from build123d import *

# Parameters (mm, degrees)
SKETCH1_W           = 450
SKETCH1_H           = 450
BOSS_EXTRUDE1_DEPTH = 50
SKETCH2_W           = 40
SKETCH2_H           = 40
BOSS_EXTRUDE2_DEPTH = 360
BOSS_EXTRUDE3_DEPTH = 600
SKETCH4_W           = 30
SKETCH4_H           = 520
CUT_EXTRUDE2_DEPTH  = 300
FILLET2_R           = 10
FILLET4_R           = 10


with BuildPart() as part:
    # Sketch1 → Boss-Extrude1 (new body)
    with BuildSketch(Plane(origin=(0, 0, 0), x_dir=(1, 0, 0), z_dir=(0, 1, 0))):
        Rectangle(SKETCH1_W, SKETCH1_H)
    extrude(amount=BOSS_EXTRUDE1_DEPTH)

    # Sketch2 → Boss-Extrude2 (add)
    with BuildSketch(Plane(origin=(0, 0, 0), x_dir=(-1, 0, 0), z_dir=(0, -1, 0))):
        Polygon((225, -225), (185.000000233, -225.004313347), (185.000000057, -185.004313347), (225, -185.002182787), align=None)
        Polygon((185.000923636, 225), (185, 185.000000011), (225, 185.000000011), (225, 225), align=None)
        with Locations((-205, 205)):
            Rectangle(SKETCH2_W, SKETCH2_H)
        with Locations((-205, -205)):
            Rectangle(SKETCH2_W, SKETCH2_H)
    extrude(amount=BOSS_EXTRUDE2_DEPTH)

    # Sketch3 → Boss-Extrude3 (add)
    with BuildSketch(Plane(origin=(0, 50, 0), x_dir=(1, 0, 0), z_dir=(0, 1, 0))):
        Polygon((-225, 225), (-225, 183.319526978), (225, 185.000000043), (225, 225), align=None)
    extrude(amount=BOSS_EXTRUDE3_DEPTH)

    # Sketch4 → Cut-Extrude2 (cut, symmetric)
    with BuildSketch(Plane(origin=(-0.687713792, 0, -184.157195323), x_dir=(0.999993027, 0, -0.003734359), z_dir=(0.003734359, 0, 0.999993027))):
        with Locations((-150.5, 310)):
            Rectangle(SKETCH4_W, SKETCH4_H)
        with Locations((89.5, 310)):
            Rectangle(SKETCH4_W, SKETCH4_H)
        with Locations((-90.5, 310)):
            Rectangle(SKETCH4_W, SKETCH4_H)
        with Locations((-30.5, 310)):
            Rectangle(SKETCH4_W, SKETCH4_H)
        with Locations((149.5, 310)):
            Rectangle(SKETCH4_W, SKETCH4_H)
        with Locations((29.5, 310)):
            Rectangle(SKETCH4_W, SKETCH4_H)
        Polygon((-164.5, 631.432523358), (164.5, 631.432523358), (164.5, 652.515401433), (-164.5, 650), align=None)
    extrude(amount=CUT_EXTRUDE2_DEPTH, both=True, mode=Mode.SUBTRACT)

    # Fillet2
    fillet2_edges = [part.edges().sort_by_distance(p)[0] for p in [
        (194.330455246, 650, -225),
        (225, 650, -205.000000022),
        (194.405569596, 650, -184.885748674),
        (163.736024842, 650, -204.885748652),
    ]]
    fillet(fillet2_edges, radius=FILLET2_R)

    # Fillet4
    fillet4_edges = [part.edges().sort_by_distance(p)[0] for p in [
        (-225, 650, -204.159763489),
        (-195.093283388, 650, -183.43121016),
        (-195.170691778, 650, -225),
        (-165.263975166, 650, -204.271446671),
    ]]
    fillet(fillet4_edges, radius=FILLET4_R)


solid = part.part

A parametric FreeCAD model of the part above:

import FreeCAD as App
import Part
import Sketcher

V = App.Vector
Q = App.Units.Quantity


def edges_at(feature, points):
    """Names of the edges that pass closest to the given points."""
    edges = feature.Shape.Edges
    near = lambda p: min(range(len(edges)), key=lambda i: edges[i].distToShape(Part.Vertex(*p))[0])
    return sorted({f"Edge{near(p) + 1}" for p in points})

doc = App.newDocument("Part")
params = doc.addObject("Spreadsheet::Sheet", "Params")
for row, (alias, value) in enumerate([
    ("sketch1_width", "450 mm"),
    ("pad1_length", "50 mm"),
    ("sketch2_width", "40 mm"),
    ("pad2_length", "360 mm"),
    ("sketch3_width", "450 mm"),
    ("sketch3_height", "40 mm"),
    ("pad3_length", "600 mm"),
    ("sketch4_width", "30 mm"),
    ("sketch4_width2", "329 mm"),
    ("sketch4_height", "519.999999 mm"),
    ("pocket1_length", "600 mm"),
    ("fillet_radius", "10 mm"),
    ("fillet2_radius", "10 mm"),
], start=1):
    params.set(f"A{row}", alias)
    params.set(f"B{row}", "=" + value)
    params.setAlias(f"B{row}", alias)

body = doc.addObject("PartDesign::Body", "Body")

# Sketch on XZ plane
sketch1 = doc.addObject("Sketcher::SketchObject", "Sketch")
body.addObject(sketch1)
sketch1.AttachmentSupport = (doc.XZ_Plane, [""])
sketch1.MapMode = "FlatFace"
sketch1.addGeometry(Part.LineSegment(V(-225, -225, 0), V(-225, 225, 0)), False)
sketch1.addGeometry(Part.LineSegment(V(-225, 225, 0), V(225, 225, 0)), False)
sketch1.addGeometry(Part.LineSegment(V(225, 225, 0), V(225, -225, 0)), False)
sketch1.addGeometry(Part.LineSegment(V(225, -225, 0), V(-225, -225, 0)), False)
sketch1.addConstraint(Sketcher.Constraint("Coincident", 0, 2, 1, 1))
sketch1.addConstraint(Sketcher.Constraint("Coincident", 1, 2, 2, 1))
sketch1.addConstraint(Sketcher.Constraint("Coincident", 2, 2, 3, 1))
sketch1.addConstraint(Sketcher.Constraint("Coincident", 3, 2, 0, 1))
sketch1.addConstraint(Sketcher.Constraint("Vertical", 0))
sketch1.addConstraint(Sketcher.Constraint("Horizontal", 1))
sketch1.addConstraint(Sketcher.Constraint("Vertical", 2))
sketch1.addConstraint(Sketcher.Constraint("Horizontal", 3))
sketch1.addConstraint(Sketcher.Constraint("Symmetric", 0, 2, 2, 2, -1, 1))
sketch1.addConstraint(Sketcher.Constraint("Equal", 3, 0))
sketch1.addConstraint(Sketcher.Constraint("DistanceX", 1, 1, 1, 2, Q("450 mm")))
sketch1.setExpression("Constraints[10]", "Params.sketch1_width")
pad1 = doc.addObject("PartDesign::Pad", "Pad")
body.addObject(pad1)
pad1.Profile = sketch1
pad1.setExpression("Length", "Params.pad1_length")
pad1.Reversed = True

# Sketch on XZ plane
sketch2 = doc.addObject("Sketcher::SketchObject", "Sketch001")
body.addObject(sketch2)
sketch2.AttachmentSupport = (doc.XZ_Plane, [""])
sketch2.MapMode = "FlatFace"
sketch2.addGeometry(Part.LineSegment(V(-185, 225.004313, 0), V(-225, 225, 0)), False)
sketch2.addGeometry(Part.LineSegment(V(-225, 225, 0), V(-225, 185.002183, 0)), False)
sketch2.addGeometry(Part.LineSegment(V(-225, 185.002183, 0), V(-185, 185.004313, 0)), False)
sketch2.addGeometry(Part.LineSegment(V(-185, 185.004313, 0), V(-185, 225.004313, 0)), False)
sketch2.addGeometry(Part.LineSegment(V(-185.000924, -225, 0), V(-185, -185, 0)), False)
sketch2.addGeometry(Part.LineSegment(V(-185, -185, 0), V(-225, -185, 0)), False)
sketch2.addGeometry(Part.LineSegment(V(-225, -185, 0), V(-225, -225, 0)), False)
sketch2.addGeometry(Part.LineSegment(V(-225, -225, 0), V(-185.000924, -225, 0)), False)
sketch2.addGeometry(Part.LineSegment(V(225, -225, 0), V(225, -185, 0)), False)
sketch2.addGeometry(Part.LineSegment(V(225, -185, 0), V(185, -185, 0)), False)
sketch2.addGeometry(Part.LineSegment(V(185, -185, 0), V(185, -225, 0)), False)
sketch2.addGeometry(Part.LineSegment(V(185, -225, 0), V(225, -225, 0)), False)
sketch2.addGeometry(Part.LineSegment(V(225, 185, 0), V(225, 225, 0)), False)
sketch2.addGeometry(Part.LineSegment(V(225, 225, 0), V(185, 225, 0)), False)
sketch2.addGeometry(Part.LineSegment(V(185, 225, 0), V(185, 185, 0)), False)
sketch2.addGeometry(Part.LineSegment(V(185, 185, 0), V(225, 185, 0)), False)
sketch2.addConstraint(Sketcher.Constraint("Coincident", 0, 2, 1, 1))
sketch2.addConstraint(Sketcher.Constraint("Coincident", 1, 2, 2, 1))
sketch2.addConstraint(Sketcher.Constraint("Coincident", 2, 2, 3, 1))
sketch2.addConstraint(Sketcher.Constraint("Coincident", 3, 2, 0, 1))
sketch2.addConstraint(Sketcher.Constraint("Coincident", 4, 2, 5, 1))
sketch2.addConstraint(Sketcher.Constraint("Coincident", 5, 2, 6, 1))
sketch2.addConstraint(Sketcher.Constraint("Coincident", 6, 2, 7, 1))
sketch2.addConstraint(Sketcher.Constraint("Coincident", 7, 2, 4, 1))
sketch2.addConstraint(Sketcher.Constraint("Coincident", 8, 2, 9, 1))
sketch2.addConstraint(Sketcher.Constraint("Coincident", 9, 2, 10, 1))
sketch2.addConstraint(Sketcher.Constraint("Coincident", 10, 2, 11, 1))
sketch2.addConstraint(Sketcher.Constraint("Coincident", 11, 2, 8, 1))
sketch2.addConstraint(Sketcher.Constraint("Coincident", 12, 2, 13, 1))
sketch2.addConstraint(Sketcher.Constraint("Coincident", 13, 2, 14, 1))
sketch2.addConstraint(Sketcher.Constraint("Coincident", 14, 2, 15, 1))
sketch2.addConstraint(Sketcher.Constraint("Coincident", 15, 2, 12, 1))
sketch2.addConstraint(Sketcher.Constraint("Vertical", 1))
sketch2.addConstraint(Sketcher.Constraint("Vertical", 3))
sketch2.addConstraint(Sketcher.Constraint("Horizontal", 5))
sketch2.addConstraint(Sketcher.Constraint("Vertical", 6))
sketch2.addConstraint(Sketcher.Constraint("Horizontal", 7))
sketch2.addConstraint(Sketcher.Constraint("Vertical", 8))
sketch2.addConstraint(Sketcher.Constraint("Horizontal", 9))
sketch2.addConstraint(Sketcher.Constraint("Vertical", 10))
sketch2.addConstraint(Sketcher.Constraint("Horizontal", 11))
sketch2.addConstraint(Sketcher.Constraint("Vertical", 12))
sketch2.addConstraint(Sketcher.Constraint("Horizontal", 13))
sketch2.addConstraint(Sketcher.Constraint("Vertical", 14))
sketch2.addConstraint(Sketcher.Constraint("Horizontal", 15))
sketch2.addConstraint(Sketcher.Constraint("Symmetric", 0, 2, 11, 2, -1, 1))
sketch2.addConstraint(Sketcher.Constraint("Symmetric", 6, 2, 12, 2, -1, 1))
sketch2.addConstraint(Sketcher.Constraint("Symmetric", 4, 2, 14, 2, -1, 1))
sketch2.addConstraint(Sketcher.Constraint("Symmetric", 5, 2, 8, 2, -2))
sketch2.addConstraint(Sketcher.Constraint("Symmetric", 10, 2, 13, 2, -1))
sketch2.addConstraint(Sketcher.Constraint("Vertical", 3, 2, 4, 2))
sketch2.addConstraint(Sketcher.Constraint("Equal", 15, 3))
sketch2.addConstraint(Sketcher.Constraint("Equal", 3, 6))
sketch2.addConstraint(Sketcher.Constraint("DistanceX", 5, 2, 5, 1, Q("40 mm")))
sketch2.addConstraint(Sketcher.Constraint("DistanceX", 0, 2, -1, 1, Q("225 mm")))
sketch2.addConstraint(Sketcher.Constraint("DistanceY", -1, 1, 0, 2, Q("225 mm")))
sketch2.addConstraint(Sketcher.Constraint("DistanceX", 7, 1, 7, 2, Q("39.999076 mm")))
sketch2.addConstraint(Sketcher.Constraint("DistanceY", 1, 2, 1, 1, Q("39.997817 mm")))
sketch2.addConstraint(Sketcher.Constraint("DistanceY", 1, 2, 2, 2, Q("0.002131 mm")))
sketch2.setExpression("Constraints[37]", "Params.sketch2_width")
pad2 = doc.addObject("PartDesign::Pad", "Pad001")
body.addObject(pad2)
pad2.Profile = sketch2
pad2.setExpression("Length", "Params.pad2_length")

# Sketch on XZ plane
sketch3 = doc.addObject("Sketcher::SketchObject", "Sketch002")
body.addObject(sketch3)
sketch3.AttachmentSupport = (doc.XZ_Plane, [""])
sketch3.MapMode = "FlatFace"
sketch3.AttachmentOffset = App.Placement(V(0, 0, -50), App.Rotation())
sketch3.addGeometry(Part.LineSegment(V(-225, -225, 0), V(-225, -183.319527, 0)), False)
sketch3.addGeometry(Part.LineSegment(V(-225, -183.319527, 0), V(225, -185, 0)), False)
sketch3.addGeometry(Part.LineSegment(V(225, -185, 0), V(225, -225, 0)), False)
sketch3.addGeometry(Part.LineSegment(V(225, -225, 0), V(-225, -225, 0)), False)
sketch3.addConstraint(Sketcher.Constraint("Coincident", 0, 2, 1, 1))
sketch3.addConstraint(Sketcher.Constraint("Coincident", 1, 2, 2, 1))
sketch3.addConstraint(Sketcher.Constraint("Coincident", 2, 2, 3, 1))
sketch3.addConstraint(Sketcher.Constraint("Coincident", 3, 2, 0, 1))
sketch3.addConstraint(Sketcher.Constraint("Vertical", 0))
sketch3.addConstraint(Sketcher.Constraint("Vertical", 2))
sketch3.addConstraint(Sketcher.Constraint("Horizontal", 3))
sketch3.addConstraint(Sketcher.Constraint("DistanceX", 3, 2, 3, 1, Q("450 mm")))
sketch3.addConstraint(Sketcher.Constraint("DistanceY", 2, 2, 2, 1, Q("40 mm")))
sketch3.addConstraint(Sketcher.Constraint("DistanceX", 0, 2, -1, 1, Q("225 mm")))
sketch3.addConstraint(Sketcher.Constraint("DistanceY", 1, 2, -1, 1, Q("185 mm")))
sketch3.addConstraint(Sketcher.Constraint("DistanceY", 0, 1, 0, 2, Q("41.680473 mm")))
sketch3.setExpression("Constraints[7]", "Params.sketch3_width")
sketch3.setExpression("Constraints[8]", "Params.sketch3_height")
pad3 = doc.addObject("PartDesign::Pad", "Pad002")
body.addObject(pad3)
pad3.Profile = sketch3
pad3.setExpression("Length", "Params.pad3_length")
pad3.Reversed = True

# Sketch on an angled plane
sketch4 = doc.addObject("Sketcher::SketchObject", "Sketch003")
body.addObject(sketch4)
sketch4.Placement = App.Placement(V(-0.687714, 0, -184.157195), App.Rotation(V(0.999993027, 0, -0.003734359), V(0, 0.999999999, 0), V(0.003734359, 0, 0.999993027), "ZXY"))
sketch4.addGeometry(Part.LineSegment(V(-165.5, 569.999999, 0), V(-165.5, 50, 0)), False)
sketch4.addGeometry(Part.LineSegment(V(-165.5, 50, 0), V(-135.5, 50, 0)), False)
sketch4.addGeometry(Part.LineSegment(V(-135.5, 50, 0), V(-135.5, 569.999999, 0)), False)
sketch4.addGeometry(Part.LineSegment(V(-135.5, 569.999999, 0), V(-165.5, 569.999999, 0)), False)
sketch4.addGeometry(Part.LineSegment(V(74.5, 569.999999, 0), V(74.5, 50, 0)), False)
sketch4.addGeometry(Part.LineSegment(V(74.5, 50, 0), V(104.5, 50, 0)), False)
sketch4.addGeometry(Part.LineSegment(V(104.5, 50, 0), V(104.5, 569.999999, 0)), False)
sketch4.addGeometry(Part.LineSegment(V(104.5, 569.999999, 0), V(74.5, 569.999999, 0)), False)
sketch4.addGeometry(Part.LineSegment(V(-105.5, 569.999999, 0), V(-105.5, 50, 0)), False)
sketch4.addGeometry(Part.LineSegment(V(-105.5, 50, 0), V(-75.5, 50, 0)), False)
sketch4.addGeometry(Part.LineSegment(V(-75.5, 50, 0), V(-75.5, 569.999999, 0)), False)
sketch4.addGeometry(Part.LineSegment(V(-75.5, 569.999999, 0), V(-105.5, 569.999999, 0)), False)
sketch4.addGeometry(Part.LineSegment(V(-45.5, 569.999999, 0), V(-45.5, 50, 0)), False)
sketch4.addGeometry(Part.LineSegment(V(-45.5, 50, 0), V(-15.5, 50, 0)), False)
sketch4.addGeometry(Part.LineSegment(V(-15.5, 50, 0), V(-15.5, 569.999999, 0)), False)
sketch4.addGeometry(Part.LineSegment(V(-15.5, 569.999999, 0), V(-45.5, 569.999999, 0)), False)
sketch4.addGeometry(Part.LineSegment(V(134.5, 569.999999, 0), V(134.5, 50, 0)), False)
sketch4.addGeometry(Part.LineSegment(V(134.5, 50, 0), V(164.5, 50, 0)), False)
sketch4.addGeometry(Part.LineSegment(V(164.5, 50, 0), V(164.5, 569.999999, 0)), False)
sketch4.addGeometry(Part.LineSegment(V(164.5, 569.999999, 0), V(134.5, 569.999999, 0)), False)
sketch4.addGeometry(Part.LineSegment(V(14.5, 569.999999, 0), V(14.5, 50, 0)), False)
sketch4.addGeometry(Part.LineSegment(V(14.5, 50, 0), V(44.5, 50, 0)), False)
sketch4.addGeometry(Part.LineSegment(V(44.5, 50, 0), V(44.5, 569.999999, 0)), False)
sketch4.addGeometry(Part.LineSegment(V(44.5, 569.999999, 0), V(14.5, 569.999999, 0)), False)
sketch4.addGeometry(Part.LineSegment(V(-164.5, 631.432523, 0), V(164.5, 631.432523, 0)), False)
sketch4.addGeometry(Part.LineSegment(V(164.5, 631.432523, 0), V(164.5, 652.515401, 0)), False)
sketch4.addGeometry(Part.LineSegment(V(164.5, 652.515401, 0), V(-164.5, 649.999999, 0)), False)
sketch4.addGeometry(Part.LineSegment(V(-164.5, 649.999999, 0), V(-164.5, 631.432523, 0)), False)
sketch4.addConstraint(Sketcher.Constraint("Coincident", 0, 2, 1, 1))
sketch4.addConstraint(Sketcher.Constraint("Coincident", 1, 2, 2, 1))
sketch4.addConstraint(Sketcher.Constraint("Coincident", 2, 2, 3, 1))
sketch4.addConstraint(Sketcher.Constraint("Coincident", 3, 2, 0, 1))
sketch4.addConstraint(Sketcher.Constraint("Coincident", 4, 2, 5, 1))
sketch4.addConstraint(Sketcher.Constraint("Coincident", 5, 2, 6, 1))
sketch4.addConstraint(Sketcher.Constraint("Coincident", 6, 2, 7, 1))
sketch4.addConstraint(Sketcher.Constraint("Coincident", 7, 2, 4, 1))
sketch4.addConstraint(Sketcher.Constraint("Coincident", 8, 2, 9, 1))
sketch4.addConstraint(Sketcher.Constraint("Coincident", 9, 2, 10, 1))
sketch4.addConstraint(Sketcher.Constraint("Coincident", 10, 2, 11, 1))
sketch4.addConstraint(Sketcher.Constraint("Coincident", 11, 2, 8, 1))
sketch4.addConstraint(Sketcher.Constraint("Coincident", 12, 2, 13, 1))
sketch4.addConstraint(Sketcher.Constraint("Coincident", 13, 2, 14, 1))
sketch4.addConstraint(Sketcher.Constraint("Coincident", 14, 2, 15, 1))
sketch4.addConstraint(Sketcher.Constraint("Coincident", 15, 2, 12, 1))
sketch4.addConstraint(Sketcher.Constraint("Coincident", 16, 2, 17, 1))
sketch4.addConstraint(Sketcher.Constraint("Coincident", 17, 2, 18, 1))
sketch4.addConstraint(Sketcher.Constraint("Coincident", 18, 2, 19, 1))
sketch4.addConstraint(Sketcher.Constraint("Coincident", 19, 2, 16, 1))
sketch4.addConstraint(Sketcher.Constraint("Coincident", 20, 2, 21, 1))
sketch4.addConstraint(Sketcher.Constraint("Coincident", 21, 2, 22, 1))
sketch4.addConstraint(Sketcher.Constraint("Coincident", 22, 2, 23, 1))
sketch4.addConstraint(Sketcher.Constraint("Coincident", 23, 2, 20, 1))
sketch4.addConstraint(Sketcher.Constraint("Coincident", 24, 2, 25, 1))
sketch4.addConstraint(Sketcher.Constraint("Coincident", 25, 2, 26, 1))
sketch4.addConstraint(Sketcher.Constraint("Coincident", 26, 2, 27, 1))
sketch4.addConstraint(Sketcher.Constraint("Coincident", 27, 2, 24, 1))
sketch4.addConstraint(Sketcher.Constraint("Vertical", 0))
sketch4.addConstraint(Sketcher.Constraint("Horizontal", 1))
sketch4.addConstraint(Sketcher.Constraint("Vertical", 2))
sketch4.addConstraint(Sketcher.Constraint("Horizontal", 3))
sketch4.addConstraint(Sketcher.Constraint("Vertical", 4))
sketch4.addConstraint(Sketcher.Constraint("Horizontal", 5))
sketch4.addConstraint(Sketcher.Constraint("Vertical", 6))
sketch4.addConstraint(Sketcher.Constraint("Horizontal", 7))
sketch4.addConstraint(Sketcher.Constraint("Vertical", 8))
sketch4.addConstraint(Sketcher.Constraint("Horizontal", 9))
sketch4.addConstraint(Sketcher.Constraint("Vertical", 10))
sketch4.addConstraint(Sketcher.Constraint("Horizontal", 11))
sketch4.addConstraint(Sketcher.Constraint("Vertical", 12))
sketch4.addConstraint(Sketcher.Constraint("Horizontal", 13))
sketch4.addConstraint(Sketcher.Constraint("Vertical", 14))
sketch4.addConstraint(Sketcher.Constraint("Horizontal", 15))
sketch4.addConstraint(Sketcher.Constraint("Vertical", 16))
sketch4.addConstraint(Sketcher.Constraint("Horizontal", 17))
sketch4.addConstraint(Sketcher.Constraint("Vertical", 18))
sketch4.addConstraint(Sketcher.Constraint("Horizontal", 19))
sketch4.addConstraint(Sketcher.Constraint("Vertical", 20))
sketch4.addConstraint(Sketcher.Constraint("Horizontal", 21))
sketch4.addConstraint(Sketcher.Constraint("Vertical", 22))
sketch4.addConstraint(Sketcher.Constraint("Horizontal", 23))
sketch4.addConstraint(Sketcher.Constraint("Horizontal", 24))
sketch4.addConstraint(Sketcher.Constraint("Vertical", 25))
sketch4.addConstraint(Sketcher.Constraint("Vertical", 27))
sketch4.addConstraint(Sketcher.Constraint("Horizontal", 1, 2, 4, 2))
sketch4.addConstraint(Sketcher.Constraint("Horizontal", 3, 2, 6, 2))
sketch4.addConstraint(Sketcher.Constraint("Horizontal", 5, 2, 8, 2))
sketch4.addConstraint(Sketcher.Constraint("Horizontal", 7, 2, 10, 2))
sketch4.addConstraint(Sketcher.Constraint("Horizontal", 9, 2, 12, 2))
sketch4.addConstraint(Sketcher.Constraint("Horizontal", 11, 2, 14, 2))
sketch4.addConstraint(Sketcher.Constraint("Horizontal", 13, 2, 16, 2))
sketch4.addConstraint(Sketcher.Constraint("Horizontal", 15, 2, 18, 2))
sketch4.addConstraint(Sketcher.Constraint("Horizontal", 17, 2, 20, 2))
sketch4.addConstraint(Sketcher.Constraint("Horizontal", 19, 2, 22, 2))
sketch4.addConstraint(Sketcher.Constraint("Vertical", 18, 2, 24, 2))
sketch4.addConstraint(Sketcher.Constraint("Equal", 3, 5))
sketch4.addConstraint(Sketcher.Constraint("Equal", 7, 9))
sketch4.addConstraint(Sketcher.Constraint("Equal", 11, 13))
sketch4.addConstraint(Sketcher.Constraint("Equal", 15, 17))
sketch4.addConstraint(Sketcher.Constraint("Equal", 19, 21))
sketch4.addConstraint(Sketcher.Constraint("DistanceX", 1, 1, 1, 2, Q("30 mm")))
sketch4.addConstraint(Sketcher.Constraint("DistanceX", 24, 1, 24, 2, Q("329 mm")))
sketch4.addConstraint(Sketcher.Constraint("DistanceY", 0, 2, 0, 1, Q("519.999999 mm")))
sketch4.addConstraint(Sketcher.Constraint("DistanceY", -1, 1, 0, 2, Q("50 mm")))
sketch4.addConstraint(Sketcher.Constraint("DistanceY", -1, 1, 26, 2, Q("649.999999 mm")))
sketch4.addConstraint(Sketcher.Constraint("DistanceX", 1, 2, 4, 2, Q("210 mm")))
sketch4.addConstraint(Sketcher.Constraint("DistanceX", 1, 2, 8, 2, Q("30 mm")))
sketch4.addConstraint(Sketcher.Constraint("DistanceX", 9, 2, 12, 2, Q("30 mm")))
sketch4.addConstraint(Sketcher.Constraint("DistanceX", 5, 2, 16, 2, Q("30 mm")))
sketch4.addConstraint(Sketcher.Constraint("DistanceX", 13, 2, 20, 2, Q("30 mm")))
sketch4.addConstraint(Sketcher.Constraint("DistanceX", 0, 2, -1, 1, Q("165.5 mm")))
sketch4.addConstraint(Sketcher.Constraint("DistanceY", 25, 1, 25, 2, Q("21.082878 mm")))
sketch4.addConstraint(Sketcher.Constraint("DistanceY", -1, 1, 25, 2, Q("652.515401 mm")))
sketch4.setExpression("Constraints[71]", "Params.sketch4_width")
sketch4.setExpression("Constraints[72]", "Params.sketch4_width2")
sketch4.setExpression("Constraints[73]", "Params.sketch4_height")
pocket1 = doc.addObject("PartDesign::Pocket", "Pocket")
body.addObject(pocket1)
pocket1.Profile = sketch4
pocket1.setExpression("Length", "Params.pocket1_length")
pocket1.Midplane = True
doc.recompute()

fillet = doc.addObject("PartDesign::Fillet", "Fillet")
body.addObject(fillet)
fillet.Base = (pocket1, edges_at(pocket1, [
    (194.33, 650, -225),
    (225, 650, -205),
    (194.406, 650, -184.886),
    (163.736, 650, -204.886),
]))
fillet.setExpression("Radius", "Params.fillet_radius")
doc.recompute()

fillet2 = doc.addObject("PartDesign::Fillet", "Fillet001")
body.addObject(fillet2)
fillet2.Base = (fillet, edges_at(fillet, [
    (-225, 650, -204.16),
    (-195.093, 650, -183.431),
    (-195.171, 650, -225),
    (-165.264, 650, -204.271),
]))
fillet2.setExpression("Radius", "Params.fillet2_radius")

doc.recompute()
